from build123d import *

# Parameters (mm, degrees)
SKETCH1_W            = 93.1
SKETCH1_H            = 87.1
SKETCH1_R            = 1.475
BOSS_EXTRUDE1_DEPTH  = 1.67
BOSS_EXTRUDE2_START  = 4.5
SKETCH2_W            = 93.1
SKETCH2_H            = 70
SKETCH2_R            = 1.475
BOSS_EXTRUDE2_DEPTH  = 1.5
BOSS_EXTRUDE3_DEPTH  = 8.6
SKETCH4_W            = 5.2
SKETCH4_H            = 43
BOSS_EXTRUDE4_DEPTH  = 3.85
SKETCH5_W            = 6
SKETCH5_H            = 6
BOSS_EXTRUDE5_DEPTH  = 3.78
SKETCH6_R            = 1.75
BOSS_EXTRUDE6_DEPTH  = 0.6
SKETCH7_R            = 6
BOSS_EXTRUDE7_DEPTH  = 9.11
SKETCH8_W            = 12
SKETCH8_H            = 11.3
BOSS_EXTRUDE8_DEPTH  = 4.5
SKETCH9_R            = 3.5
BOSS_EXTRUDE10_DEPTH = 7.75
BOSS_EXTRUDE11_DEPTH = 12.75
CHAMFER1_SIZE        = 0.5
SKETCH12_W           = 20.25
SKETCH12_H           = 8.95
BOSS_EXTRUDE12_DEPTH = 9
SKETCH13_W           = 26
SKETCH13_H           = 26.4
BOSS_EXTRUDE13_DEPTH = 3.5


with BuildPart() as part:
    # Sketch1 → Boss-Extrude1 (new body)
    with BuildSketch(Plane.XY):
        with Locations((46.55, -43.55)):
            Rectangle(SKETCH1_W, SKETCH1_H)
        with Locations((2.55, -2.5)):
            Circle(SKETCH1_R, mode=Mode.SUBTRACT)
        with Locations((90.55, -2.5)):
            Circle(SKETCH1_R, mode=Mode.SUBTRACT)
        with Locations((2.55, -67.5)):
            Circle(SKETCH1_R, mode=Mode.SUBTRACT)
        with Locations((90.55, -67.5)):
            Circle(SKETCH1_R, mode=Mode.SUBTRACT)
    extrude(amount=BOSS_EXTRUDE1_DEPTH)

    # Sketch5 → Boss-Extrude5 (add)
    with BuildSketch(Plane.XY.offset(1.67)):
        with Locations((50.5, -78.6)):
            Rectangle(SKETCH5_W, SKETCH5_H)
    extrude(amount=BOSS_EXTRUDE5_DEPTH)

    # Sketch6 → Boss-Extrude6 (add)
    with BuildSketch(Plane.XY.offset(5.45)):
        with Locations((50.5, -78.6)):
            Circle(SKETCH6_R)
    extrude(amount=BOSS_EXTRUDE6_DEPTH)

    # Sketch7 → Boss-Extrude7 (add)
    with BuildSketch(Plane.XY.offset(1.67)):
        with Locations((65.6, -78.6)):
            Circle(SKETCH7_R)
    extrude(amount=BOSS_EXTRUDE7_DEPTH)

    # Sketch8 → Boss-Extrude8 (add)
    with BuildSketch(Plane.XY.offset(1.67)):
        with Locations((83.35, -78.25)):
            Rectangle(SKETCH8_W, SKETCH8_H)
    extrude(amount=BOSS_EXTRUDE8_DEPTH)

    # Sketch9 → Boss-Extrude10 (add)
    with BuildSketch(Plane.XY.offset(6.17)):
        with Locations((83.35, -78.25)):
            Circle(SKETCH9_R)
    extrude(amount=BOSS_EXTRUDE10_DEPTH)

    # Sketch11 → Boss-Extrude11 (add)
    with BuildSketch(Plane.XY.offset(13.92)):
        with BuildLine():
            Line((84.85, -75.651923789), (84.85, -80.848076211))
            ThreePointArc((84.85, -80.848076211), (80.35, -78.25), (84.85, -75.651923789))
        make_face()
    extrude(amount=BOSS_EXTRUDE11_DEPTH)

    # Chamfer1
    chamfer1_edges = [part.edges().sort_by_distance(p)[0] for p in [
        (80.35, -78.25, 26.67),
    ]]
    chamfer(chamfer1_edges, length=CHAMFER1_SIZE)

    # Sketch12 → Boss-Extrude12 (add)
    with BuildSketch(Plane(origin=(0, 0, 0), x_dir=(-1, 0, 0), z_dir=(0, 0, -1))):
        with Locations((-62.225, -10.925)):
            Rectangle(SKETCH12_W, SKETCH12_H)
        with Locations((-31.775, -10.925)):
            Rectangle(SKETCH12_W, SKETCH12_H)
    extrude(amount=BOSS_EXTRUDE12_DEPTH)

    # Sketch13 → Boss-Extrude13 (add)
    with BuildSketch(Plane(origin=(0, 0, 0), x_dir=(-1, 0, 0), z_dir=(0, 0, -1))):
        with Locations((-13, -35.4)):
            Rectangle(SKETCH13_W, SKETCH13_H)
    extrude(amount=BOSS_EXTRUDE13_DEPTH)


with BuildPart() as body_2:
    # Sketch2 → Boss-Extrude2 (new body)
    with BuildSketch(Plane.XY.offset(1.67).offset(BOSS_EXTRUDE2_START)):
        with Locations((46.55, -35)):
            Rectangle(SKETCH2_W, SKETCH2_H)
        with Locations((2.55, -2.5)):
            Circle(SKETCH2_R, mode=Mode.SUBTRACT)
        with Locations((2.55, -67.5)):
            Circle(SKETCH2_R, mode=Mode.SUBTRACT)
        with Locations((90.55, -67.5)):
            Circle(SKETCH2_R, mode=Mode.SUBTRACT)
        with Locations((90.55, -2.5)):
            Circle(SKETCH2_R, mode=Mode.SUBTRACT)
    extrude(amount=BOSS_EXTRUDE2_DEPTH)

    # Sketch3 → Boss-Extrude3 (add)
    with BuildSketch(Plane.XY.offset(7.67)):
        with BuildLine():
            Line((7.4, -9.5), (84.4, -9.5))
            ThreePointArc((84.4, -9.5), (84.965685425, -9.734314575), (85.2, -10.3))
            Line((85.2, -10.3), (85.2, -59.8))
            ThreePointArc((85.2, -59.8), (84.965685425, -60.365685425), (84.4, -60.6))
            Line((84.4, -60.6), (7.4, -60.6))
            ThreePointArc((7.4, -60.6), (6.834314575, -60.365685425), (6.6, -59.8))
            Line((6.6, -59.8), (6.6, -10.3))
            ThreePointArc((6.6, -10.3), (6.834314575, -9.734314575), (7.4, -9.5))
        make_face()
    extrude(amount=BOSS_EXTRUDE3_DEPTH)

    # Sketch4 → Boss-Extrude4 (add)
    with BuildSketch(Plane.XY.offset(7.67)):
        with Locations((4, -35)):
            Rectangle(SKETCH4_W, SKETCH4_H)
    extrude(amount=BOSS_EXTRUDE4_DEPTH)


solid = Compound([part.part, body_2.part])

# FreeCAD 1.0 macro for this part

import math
import FreeCAD as App
import Part
import Sketcher

V = App.Vector


def edges_at(feature, points):
    """Names of the edges that pass closest to the given points."""
    edges = feature.Shape.Edges
    near = lambda p: min(range(len(edges)), key=lambda i: edges[i].distToShape(Part.Vertex(*p))[0])
    return sorted({f"Edge{near(p) + 1}" for p in points})

doc = App.newDocument("Part")
body = doc.addObject("PartDesign::Body", "Body")

sketch1 = body.newObject("Sketcher::SketchObject", "Sketch")
sketch1.AttachmentSupport = (doc.getObject("XY_Plane"), [""])
sketch1.MapMode = "FlatFace"
sketch1.addGeometry(Part.LineSegment(V(0, 0, 0), V(0, -87.1, 0)), False)
sketch1.addGeometry(Part.LineSegment(V(0, -87.1, 0), V(93.1, -87.1, 0)), False)
sketch1.addGeometry(Part.LineSegment(V(93.1, -87.1, 0), V(93.1, 0, 0)), False)
sketch1.addGeometry(Part.LineSegment(V(93.1, 0, 0), V(0, 0, 0)), False)
sketch1.addGeometry(Part.Circle(V(2.5, -67.5, 0), V(0, 0, 1), 1.5), False)
sketch1.addGeometry(Part.Circle(V(90.5, -67.5, 0), V(0, 0, 1), 1.5), False)
sketch1.addGeometry(Part.Circle(V(2.5, -2.5, 0), V(0, 0, 1), 1.5), False)
sketch1.addGeometry(Part.Circle(V(90.5, -2.5, 0), V(0, 0, 1), 1.5), False)
sketch1.addConstraint(Sketcher.Constraint("Coincident", 0, 2, 1, 1))
sketch1.addConstraint(Sketcher.Constraint("Coincident", 1, 2, 2, 1))
sketch1.addConstraint(Sketcher.Constraint("Coincident", 2, 2, 3, 1))
sketch1.addConstraint(Sketcher.Constraint("Coincident", 3, 2, 0, 1))
sketch1.addConstraint(Sketcher.Constraint("Vertical", 0))
sketch1.addConstraint(Sketcher.Constraint("Horizontal", 1))
sketch1.addConstraint(Sketcher.Constraint("Vertical", 2))
sketch1.addConstraint(Sketcher.Constraint("Horizontal", 3))
sketch1.addConstraint(Sketcher.Constraint("Coincident", 3, 2, -1, 1))
sketch1.addConstraint(Sketcher.Constraint("Equal", 4, 5))
sketch1.addConstraint(Sketcher.Constraint("Equal", 5, 6))
sketch1.addConstraint(Sketcher.Constraint("Equal", 6, 7))
sketch1.addConstraint(Sketcher.Constraint("Horizontal", 4, 3, 5, 3))
sketch1.addConstraint(Sketcher.Constraint("Horizontal", 6, 3, 7, 3))
sketch1.addConstraint(Sketcher.Constraint("Vertical", 4, 3, 6, 3))
sketch1.addConstraint(Sketcher.Constraint("Vertical", 5, 3, 7, 3))
sketch1.addConstraint(Sketcher.Constraint("Diameter", 4, 2.95))
sketch1.addConstraint(Sketcher.Constraint("DistanceX", 1, 1, 1, 2, 93.1))
sketch1.addConstraint(Sketcher.Constraint("DistanceY", 0, 2, 0, 1, 87.1))
sketch1.addConstraint(Sketcher.Constraint("DistanceX", 4, 3, 5, 3, 88.0))
sketch1.addConstraint(Sketcher.Constraint("DistanceY", 4, 3, 6, 3, 65.0))
sketch1.addConstraint(Sketcher.Constraint("DistanceY", 4, 3, -1, 1, 67.5))
sketch1.addConstraint(Sketcher.Constraint("DistanceX", -1, 1, 4, 3, 2.55))
pad1 = body.newObject("PartDesign::Pad", "Pad")
pad1.Profile = sketch1
pad1.Length = 1.67

sketch2 = body.newObject("Sketcher::SketchObject", "Sketch001")
sketch2.AttachmentSupport = (doc.getObject("XY_Plane"), [""])
sketch2.MapMode = "FlatFace"
sketch2.AttachmentOffset = App.Placement(V(0, 0, 1.67), App.Rotation())
sketch2.addGeometry(Part.LineSegment(V(48, -76, 0), V(48, -82, 0)), False)
sketch2.addGeometry(Part.LineSegment(V(48, -82, 0), V(54, -82, 0)), False)
sketch2.addGeometry(Part.LineSegment(V(54, -82, 0), V(54, -76, 0)), False)
sketch2.addGeometry(Part.LineSegment(V(54, -76, 0), V(48, -76, 0)), False)
sketch2.addConstraint(Sketcher.Constraint("Coincident", 0, 2, 1, 1))
sketch2.addConstraint(Sketcher.Constraint("Coincident", 1, 2, 2, 1))
sketch2.addConstraint(Sketcher.Constraint("Coincident", 2, 2, 3, 1))
sketch2.addConstraint(Sketcher.Constraint("Coincident", 3, 2, 0, 1))
sketch2.addConstraint(Sketcher.Constraint("Vertical", 0))
sketch2.addConstraint(Sketcher.Constraint("Horizontal", 1))
sketch2.addConstraint(Sketcher.Constraint("Vertical", 2))
sketch2.addConstraint(Sketcher.Constraint("Horizontal", 3))
sketch2.addConstraint(Sketcher.Constraint("Equal", 3, 0))
sketch2.addConstraint(Sketcher.Constraint("DistanceX", 1, 1, 1, 2, 6.0))
sketch2.addConstraint(Sketcher.Constraint("DistanceX", -1, 1, 0, 2, 47.5))
sketch2.addConstraint(Sketcher.Constraint("DistanceY", 0, 2, -1, 1, 81.6))
pad2 = body.newObject("PartDesign::Pad", "Pad001")
pad2.Profile = sketch2
pad2.Length = 3.78

sketch3 = body.newObject("Sketcher::SketchObject", "Sketch002")
sketch3.AttachmentSupport = (doc.getObject("XY_Plane"), [""])
sketch3.MapMode = "FlatFace"
sketch3.AttachmentOffset = App.Placement(V(0, 0, 5.45), App.Rotation())
sketch3.addGeometry(Part.Circle(V(50.5, -78.6, 0), V(0, 0, 1), 1.8), False)
sketch3.addConstraint(Sketcher.Constraint("Diameter", 0, 3.5))
sketch3.addConstraint(Sketcher.Constraint("DistanceX", -1, 1, 0, 3, 50.5))
sketch3.addConstraint(Sketcher.Constraint("DistanceY", 0, 3, -1, 1, 78.6))
pad3 = body.newObject("PartDesign::Pad", "Pad002")
pad3.Profile = sketch3
pad3.Length = 0.6

sketch4 = body.newObject("Sketcher::SketchObject", "Sketch003")
sketch4.AttachmentSupport = (doc.getObject("XY_Plane"), [""])
sketch4.MapMode = "FlatFace"
sketch4.AttachmentOffset = App.Placement(V(0, 0, 1.67), App.Rotation())
sketch4.addGeometry(Part.Circle(V(66, -79, 0), V(0, 0, 1), 6), False)
sketch4.addConstraint(Sketcher.Constraint("Diameter", 0, 12.0))
sketch4.addConstraint(Sketcher.Constraint("DistanceX", -1, 1, 0, 3, 65.6))
sketch4.addConstraint(Sketcher.Constraint("DistanceY", 0, 3, -1, 1, 78.6))
pad4 = body.newObject("PartDesign::Pad", "Pad003")
pad4.Profile = sketch4
pad4.Length = 9.11

sketch5 = body.newObject("Sketcher::SketchObject", "Sketch004")
sketch5.AttachmentSupport = (doc.getObject("XY_Plane"), [""])
sketch5.MapMode = "FlatFace"
sketch5.AttachmentOffset = App.Placement(V(0, 0, 1.67), App.Rotation())
sketch5.addGeometry(Part.LineSegment(V(77, -73, 0), V(77, -84, 0)), False)
sketch5.addGeometry(Part.LineSegment(V(77, -84, 0), V(89, -84, 0)), False)
sketch5.addGeometry(Part.LineSegment(V(89, -84, 0), V(89, -73, 0)), False)
sketch5.addGeometry(Part.LineSegment(V(89, -73, 0), V(77, -73, 0)), False)
sketch5.addConstraint(Sketcher.Constraint("Coincident", 0, 2, 1, 1))
sketch5.addConstraint(Sketcher.Constraint("Coincident", 1, 2, 2, 1))
sketch5.addConstraint(Sketcher.Constraint("Coincident", 2, 2, 3, 1))
sketch5.addConstraint(Sketcher.Constraint("Coincident", 3, 2, 0, 1))
sketch5.addConstraint(Sketcher.Constraint("Vertical", 0))
sketch5.addConstraint(Sketcher.Constraint("Horizontal", 1))
sketch5.addConstraint(Sketcher.Constraint("Vertical", 2))
sketch5.addConstraint(Sketcher.Constraint("Horizontal", 3))
sketch5.addConstraint(Sketcher.Constraint("DistanceX", 1, 1, 1, 2, 12.0))
sketch5.addConstraint(Sketcher.Constraint("DistanceY", 0, 2, 0, 1, 11.3))
sketch5.addConstraint(Sketcher.Constraint("DistanceY", 0, 2, -1, 1, 83.9))
sketch5.addConstraint(Sketcher.Constraint("DistanceX", -1, 1, 0, 2, 77.35))
pad5 = body.newObject("PartDesign::Pad", "Pad004")
pad5.Profile = sketch5
pad5.Length = 4.5

sketch6 = body.newObject("Sketcher::SketchObject", "Sketch005")
sketch6.AttachmentSupport = (doc.getObject("XY_Plane"), [""])
sketch6.MapMode = "FlatFace"
sketch6.AttachmentOffset = App.Placement(V(0, 0, 6.17), App.Rotation())
sketch6.addGeometry(Part.Circle(V(83.3, -78.2, 0), V(0, 0, 1), 3.5), False)
sketch6.addConstraint(Sketcher.Constraint("Diameter", 0, 7.0))
sketch6.addConstraint(Sketcher.Constraint("DistanceX", -1, 1, 0, 3, 83.35))
sketch6.addConstraint(Sketcher.Constraint("DistanceY", 0, 3, -1, 1, 78.25))
pad6 = body.newObject("PartDesign::Pad", "Pad005")
pad6.Profile = sketch6
pad6.Length = 7.75

sketch7 = body.newObject("Sketcher::SketchObject", "Sketch006")
sketch7.AttachmentSupport = (doc.getObject("XY_Plane"), [""])
sketch7.MapMode = "FlatFace"
sketch7.AttachmentOffset = App.Placement(V(0, 0, 13.92), App.Rotation())
sketch7.addGeometry(Part.LineSegment(V(84.8, -80.8, 0), V(84.8, -75.7, 0)), False)
sketch7.addGeometry(Part.ArcOfCircle(Part.Circle(V(83.3, -78.2, 0), V(0, 0, 1), 3), math.radians(60), math.radians(300)), False)
sketch7.addConstraint(Sketcher.Constraint("Coincident", 0, 1, 1, 2))
sketch7.addConstraint(Sketcher.Constraint("Coincident", 1, 1, 0, 2))
sketch7.addConstraint(Sketcher.Constraint("Vertical", 0))
sketch7.addConstraint(Sketcher.Constraint("Radius", 1, 3.0))
sketch7.addConstraint(Sketcher.Constraint("DistanceX", 1, 3, 0, 1, 1.5))
sketch7.addConstraint(Sketcher.Constraint("DistanceX", -1, 1, 1, 3, 83.35))
sketch7.addConstraint(Sketcher.Constraint("DistanceY", 1, 3, -1, 1, 78.25))
pad7 = body.newObject("PartDesign::Pad", "Pad006")
pad7.Profile = sketch7
pad7.Length = 12.75
doc.recompute()

chamfer = body.newObject("PartDesign::Chamfer", "Chamfer")
chamfer.Base = (pad7, edges_at(pad7, [(80.35, -78.25, 26.67)]))
chamfer.Size = 0.5

sketch8 = body.newObject("Sketcher::SketchObject", "Sketch007")
sketch8.AttachmentSupport = (doc.getObject("XY_Plane"), [""])
sketch8.MapMode = "FlatFace"
sketch8.addGeometry(Part.LineSegment(V(72, -6, 0), V(72, -15, 0)), False)
sketch8.addGeometry(Part.LineSegment(V(72, -15, 0), V(52, -15, 0)), False)
sketch8.addGeometry(Part.LineSegment(V(52, -15, 0), V(52, -6, 0)), False)
sketch8.addGeometry(Part.LineSegment(V(52, -6, 0), V(72, -6, 0)), False)
sketch8.addGeometry(Part.LineSegment(V(42, -6, 0), V(42, -15, 0)), False)
sketch8.addGeometry(Part.LineSegment(V(42, -15, 0), V(22, -15, 0)), False)
sketch8.addGeometry(Part.LineSegment(V(22, -15, 0), V(22, -6, 0)), False)
sketch8.addGeometry(Part.LineSegment(V(22, -6, 0), V(42, -6, 0)), False)
sketch8.addConstraint(Sketcher.Constraint("Coincident", 0, 2, 1, 1))
sketch8.addConstraint(Sketcher.Constraint("Coincident", 1, 2, 2, 1))
sketch8.addConstraint(Sketcher.Constraint("Coincident", 2, 2, 3, 1))
sketch8.addConstraint(Sketcher.Constraint("Coincident", 3, 2, 0, 1))
sketch8.addConstraint(Sketcher.Constraint("Coincident", 4, 2, 5, 1))
sketch8.addConstraint(Sketcher.Constraint("Coincident", 5, 2, 6, 1))
sketch8.addConstraint(Sketcher.Constraint("Coincident", 6, 2, 7, 1))
sketch8.addConstraint(Sketcher.Constraint("Coincident", 7, 2, 4, 1))
sketch8.addConstraint(Sketcher.Constraint("Vertical", 0))
sketch8.addConstraint(Sketcher.Constraint("Horizontal", 1))
sketch8.addConstraint(Sketcher.Constraint("Vertical", 2))
sketch8.addConstraint(Sketcher.Constraint("Horizontal", 3))
sketch8.addConstraint(Sketcher.Constraint("Vertical", 4))
sketch8.addConstraint(Sketcher.Constraint("Horizontal", 5))
sketch8.addConstraint(Sketcher.Constraint("Vertical", 6))
sketch8.addConstraint(Sketcher.Constraint("Horizontal", 7))
sketch8.addConstraint(Sketcher.Constraint("Horizontal", 1, 2, 4, 2))
sketch8.addConstraint(Sketcher.Constraint("Horizontal", 3, 2, 6, 2))
sketch8.addConstraint(Sketcher.Constraint("Equal", 3, 5))
sketch8.addConstraint(Sketcher.Constraint("DistanceX", 1, 2, 1, 1, 20.25))
sketch8.addConstraint(Sketcher.Constraint("DistanceY", 0, 2, 0, 1, 8.95))
sketch8.addConstraint(Sketcher.Constraint("DistanceY", 0, 2, -1, 1, 15.4))
sketch8.addConstraint(Sketcher.Constraint("DistanceX", -1, 1, 1, 2, 52.1))
sketch8.addConstraint(Sketcher.Constraint("DistanceX", -1, 1, 4, 2, 41.9))
pad8 = body.newObject("PartDesign::Pad", "Pad007")
pad8.Profile = sketch8
pad8.Length = 9
pad8.Reversed = True

sketch9 = body.newObject("Sketcher::SketchObject", "Sketch008")
sketch9.AttachmentSupport = (doc.getObject("XY_Plane"), [""])
sketch9.MapMode = "FlatFace"
sketch9.addGeometry(Part.LineSegment(V(26, -22, 0), V(26, -49, 0)), False)
sketch9.addGeometry(Part.LineSegment(V(26, -49, 0), V(0, -49, 0)), False)
sketch9.addGeometry(Part.LineSegment(V(0, -49, 0), V(0, -22, 0)), False)
sketch9.addGeometry(Part.LineSegment(V(0, -22, 0), V(26, -22, 0)), False)
sketch9.addConstraint(Sketcher.Constraint("Coincident", 0, 2, 1, 1))
sketch9.addConstraint(Sketcher.Constraint("Coincident", 1, 2, 2, 1))
sketch9.addConstraint(Sketcher.Constraint("Coincident", 2, 2, 3, 1))
sketch9.addConstraint(Sketcher.Constraint("Coincident", 3, 2, 0, 1))
sketch9.addConstraint(Sketcher.Constraint("Vertical", 0))
sketch9.addConstraint(Sketcher.Constraint("Horizontal", 1))
sketch9.addConstraint(Sketcher.Constraint("Vertical", 2))
sketch9.addConstraint(Sketcher.Constraint("Horizontal", 3))
sketch9.addConstraint(Sketcher.Constraint("PointOnObject", 1, 2, -2))
sketch9.addConstraint(Sketcher.Constraint("DistanceX", 1, 2, 1, 1, 26.0))
sketch9.addConstraint(Sketcher.Constraint("DistanceY", 0, 2, 0, 1, 26.4))
sketch9.addConstraint(Sketcher.Constraint("DistanceY", 0, 2, -1, 1, 48.6))
pad9 = body.newObject("PartDesign::Pad", "Pad008")
pad9.Profile = sketch9
pad9.Length = 3.5
pad9.Reversed = True
body2 = doc.addObject("PartDesign::Body", "Body001")

sketch10 = body2.newObject("Sketcher::SketchObject", "Sketch009")
sketch10.AttachmentSupport = (doc.getObject("XY_Plane001"), [""])
sketch10.MapMode = "FlatFace"
sketch10.AttachmentOffset = App.Placement(V(0, 0, 6.17), App.Rotation())
sketch10.addGeometry(Part.LineSegment(V(0, 0, 0), V(0, -70, 0)), False)
sketch10.addGeometry(Part.LineSegment(V(0, -70, 0), V(93.1, -70, 0)), False)
sketch10.addGeometry(Part.LineSegment(V(93.1, -70, 0), V(93.1, 0, 0)), False)
sketch10.addGeometry(Part.LineSegment(V(93.1, 0, 0), V(0, 0, 0)), False)
sketch10.addGeometry(Part.Circle(V(2.5, -67.5, 0), V(0, 0, 1), 1.5), False)
sketch10.addGeometry(Part.Circle(V(90.5, -67.5, 0), V(0, 0, 1), 1.5), False)
sketch10.addGeometry(Part.Circle(V(2.5, -2.5, 0), V(0, 0, 1), 1.5), False)
sketch10.addGeometry(Part.Circle(V(90.5, -2.5, 0), V(0, 0, 1), 1.5), False)
sketch10.addConstraint(Sketcher.Constraint("Coincident", 0, 2, 1, 1))
sketch10.addConstraint(Sketcher.Constraint("Coincident", 1, 2, 2, 1))
sketch10.addConstraint(Sketcher.Constraint("Coincident", 2, 2, 3, 1))
sketch10.addConstraint(Sketcher.Constraint("Coincident", 3, 2, 0, 1))
sketch10.addConstraint(Sketcher.Constraint("Vertical", 0))
sketch10.addConstraint(Sketcher.Constraint("Horizontal", 1))
sketch10.addConstraint(Sketcher.Constraint("Vertical", 2))
sketch10.addConstraint(Sketcher.Constraint("Horizontal", 3))
sketch10.addConstraint(Sketcher.Constraint("Coincident", 3, 2, -1, 1))
sketch10.addConstraint(Sketcher.Constraint("Equal", 4, 5))
sketch10.addConstraint(Sketcher.Constraint("Equal", 5, 6))
sketch10.addConstraint(Sketcher.Constraint("Equal", 6, 7))
sketch10.addConstraint(Sketcher.Constraint("Horizontal", 4, 3, 5, 3))
sketch10.addConstraint(Sketcher.Constraint("Horizontal", 6, 3, 7, 3))
sketch10.addConstraint(Sketcher.Constraint("Vertical", 4, 3, 6, 3))
sketch10.addConstraint(Sketcher.Constraint("Vertical", 5, 3, 7, 3))
sketch10.addConstraint(Sketcher.Constraint("Diameter", 4, 2.95))
sketch10.addConstraint(Sketcher.Constraint("DistanceY", 0, 2, 0, 1, 70.0))
sketch10.addConstraint(Sketcher.Constraint("DistanceX", 1, 1, 1, 2, 93.1))
sketch10.addConstraint(Sketcher.Constraint("DistanceX", 4, 3, 5, 3, 88.0))
sketch10.addConstraint(Sketcher.Constraint("DistanceY", 4, 3, 6, 3, 65.0))
sketch10.addConstraint(Sketcher.Constraint("DistanceY", 4, 3, -1, 1, 67.5))
sketch10.addConstraint(Sketcher.Constraint("DistanceX", -1, 1, 4, 3, 2.55))
pad10 = body2.newObject("PartDesign::Pad", "Pad009")
pad10.Profile = sketch10
pad10.Length = 1.5

sketch11 = body2.newObject("Sketcher::SketchObject", "Sketch010")
sketch11.AttachmentSupport = (doc.getObject("XY_Plane001"), [""])
sketch11.MapMode = "FlatFace"
sketch11.AttachmentOffset = App.Placement(V(0, 0, 7.67), App.Rotation())
sketch11.addGeometry(Part.LineSegment(V(84.4, -9.5, 0), V(7.4, -9.5, 0)), False)
sketch11.addGeometry(Part.ArcOfCircle(Part.Circle(V(7.4, -10.3, 0), V(0, 0, 1), 0.8), math.radians(90), math.radians(180)), False)
sketch11.addGeometry(Part.LineSegment(V(6.6, -10.3, 0), V(6.6, -59.8, 0)), False)
sketch11.addGeometry(Part.ArcOfCircle(Part.Circle(V(7.4, -59.8, 0), V(0, 0, 1), 0.8), math.radians(180), math.radians(270)), False)
sketch11.addGeometry(Part.LineSegment(V(7.4, -60.6, 0), V(84.4, -60.6, 0)), False)
sketch11.addGeometry(Part.ArcOfCircle(Part.Circle(V(84.4, -59.8, 0), V(0, 0, 1), 0.8), math.radians(-90), math.radians(0)), False)
sketch11.addGeometry(Part.LineSegment(V(85.2, -59.8, 0), V(85.2, -10.3, 0)), False)
sketch11.addGeometry(Part.ArcOfCircle(Part.Circle(V(84.4, -10.3, 0), V(0, 0, 1), 0.8), math.radians(0), math.radians(90)), False)
sketch11.addConstraint(Sketcher.Constraint("Tangent", 0, 2, 1, 1))
sketch11.addConstraint(Sketcher.Constraint("Tangent", 1, 2, 2, 1))
sketch11.addConstraint(Sketcher.Constraint("Tangent", 2, 2, 3, 1))
sketch11.addConstraint(Sketcher.Constraint("Tangent", 3, 2, 4, 1))
sketch11.addConstraint(Sketcher.Constraint("Tangent", 4, 2, 5, 1))
sketch11.addConstraint(Sketcher.Constraint("Tangent", 5, 2, 6, 1))
sketch11.addConstraint(Sketcher.Constraint("Tangent", 6, 2, 7, 1))
sketch11.addConstraint(Sketcher.Constraint("Tangent", 7, 2, 0, 1))
sketch11.addConstraint(Sketcher.Constraint("Horizontal", 0))
sketch11.addConstraint(Sketcher.Constraint("Vertical", 2))
sketch11.addConstraint(Sketcher.Constraint("Horizontal", 4))
sketch11.addConstraint(Sketcher.Constraint("Vertical", 6))
sketch11.addConstraint(Sketcher.Constraint("Equal", 1, 3))
sketch11.addConstraint(Sketcher.Constraint("Equal", 3, 5))
sketch11.addConstraint(Sketcher.Constraint("Equal", 5, 7))
sketch11.addConstraint(Sketcher.Constraint("Radius", 1, 0.8))
sketch11.addConstraint(Sketcher.Constraint("DistanceX", 0, 2, 0, 1, 77.0))
sketch11.addConstraint(Sketcher.Constraint("DistanceY", 2, 2, 2, 1, 49.5))
sketch11.addConstraint(Sketcher.Constraint("DistanceX", -1, 1, 1, 3, 7.4))
sketch11.addConstraint(Sketcher.Constraint("DistanceY", 1, 3, -1, 1, 10.3))
pad11 = body2.newObject("PartDesign::Pad", "Pad010")
pad11.Profile = sketch11
pad11.Length = 8.6

sketch12 = body2.newObject("Sketcher::SketchObject", "Sketch011")
sketch12.AttachmentSupport = (doc.getObject("XY_Plane001"), [""])
sketch12.MapMode = "FlatFace"
sketch12.AttachmentOffset = App.Placement(V(0, 0, 7.67), App.Rotation())
sketch12.addGeometry(Part.LineSegment(V(1, -14, 0), V(1, -56, 0)), False)
sketch12.addGeometry(Part.LineSegment(V(1, -56, 0), V(7, -56, 0)), False)
sketch12.addGeometry(Part.LineSegment(V(7, -56, 0), V(7, -14, 0)), False)
sketch12.addGeometry(Part.LineSegment(V(7, -14, 0), V(1, -14, 0)), False)
sketch12.addConstraint(Sketcher.Constraint("Coincident", 0, 2, 1, 1))
sketch12.addConstraint(Sketcher.Constraint("Coincident", 1, 2, 2, 1))
sketch12.addConstraint(Sketcher.Constraint("Coincident", 2, 2, 3, 1))
sketch12.addConstraint(Sketcher.Constraint("Coincident", 3, 2, 0, 1))
sketch12.addConstraint(Sketcher.Constraint("Vertical", 0))
sketch12.addConstraint(Sketcher.Constraint("Horizontal", 1))
sketch12.addConstraint(Sketcher.Constraint("Vertical", 2))
sketch12.addConstraint(Sketcher.Constraint("Horizontal", 3))
sketch12.addConstraint(Sketcher.Constraint("DistanceY", 0, 2, 0, 1, 43.0))
sketch12.addConstraint(Sketcher.Constraint("DistanceX", 1, 1, 1, 2, 5.2))
sketch12.addConstraint(Sketcher.Constraint("DistanceX", -1, 1, 0, 2, 1.4))
sketch12.addConstraint(Sketcher.Constraint("DistanceY", 0, 2, -1, 1, 56.5))
pad12 = body2.newObject("PartDesign::Pad", "Pad011")
pad12.Profile = sketch12
pad12.Length = 3.85

doc.recompute()
